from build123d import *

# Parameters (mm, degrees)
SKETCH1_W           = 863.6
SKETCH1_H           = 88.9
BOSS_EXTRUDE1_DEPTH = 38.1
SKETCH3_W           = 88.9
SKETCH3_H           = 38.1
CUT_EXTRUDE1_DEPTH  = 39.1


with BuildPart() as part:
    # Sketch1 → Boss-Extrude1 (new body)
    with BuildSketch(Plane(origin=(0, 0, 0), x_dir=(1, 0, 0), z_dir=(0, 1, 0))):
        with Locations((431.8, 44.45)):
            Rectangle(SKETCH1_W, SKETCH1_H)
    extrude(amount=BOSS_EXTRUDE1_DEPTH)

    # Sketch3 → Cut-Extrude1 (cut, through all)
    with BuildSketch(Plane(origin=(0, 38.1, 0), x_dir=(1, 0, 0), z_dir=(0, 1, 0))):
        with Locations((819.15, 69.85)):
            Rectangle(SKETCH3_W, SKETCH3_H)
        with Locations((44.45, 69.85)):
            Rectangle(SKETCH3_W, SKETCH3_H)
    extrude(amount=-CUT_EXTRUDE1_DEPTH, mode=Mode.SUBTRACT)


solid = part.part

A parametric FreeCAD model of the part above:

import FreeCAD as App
import Part
import Sketcher
from FreeCAD import Vector
Q = App.Units.Quantity

doc = App.newDocument("Part")
params = doc.addObject("Spreadsheet::Sheet", "Params")
for row, (alias, value) in enumerate([
    ("sketch1_width", "34 in"),
    ("sketch1_height", "3.5 in"),
    ("pad1_length", "1.5 in"),
    ("sketch2_width", "3.5 in"),
    ("sketch2_height", "1.5 in"),
], start=1):
    params.set(f"A{row}", alias)
    params.set(f"B{row}", "=" + value)
    params.setAlias(f"B{row}", alias)

body = doc.addObject("PartDesign::Body", "Body")

# Sketch on XZ plane
sketch1 = body.newObject("Sketcher::SketchObject", "Sketch")
sketch1.AttachmentSupport = (doc.getObject("XZ_Plane"), [""])
sketch1.MapMode = "FlatFace"
sketch1.addGeometry([
    Part.LineSegment(Vector(0, -89, 0), Vector(0, 0, 0)),
    Part.LineSegment(Vector(0, 0, 0), Vector(864, 0, 0)),
    Part.LineSegment(Vector(864, 0, 0), Vector(864, -89, 0)),
    Part.LineSegment(Vector(864, -89, 0), Vector(0, -89, 0)),
], False)
sketch1.addConstraint([
    Sketcher.Constraint("Coincident", 0, 2, 1, 1),
    Sketcher.Constraint("Coincident", 1, 2, 2, 1),
    Sketcher.Constraint("Coincident", 2, 2, 3, 1),
    Sketcher.Constraint("Coincident", 3, 2, 0, 1),
    Sketcher.Constraint("Vertical", 0),
    Sketcher.Constraint("Horizontal", 1),
    Sketcher.Constraint("Vertical", 2),
    Sketcher.Constraint("Horizontal", 3),
    Sketcher.Constraint("Coincident", 0, 2, -1, 1),
    Sketcher.Constraint("DistanceX", 1, 1, 1, 2, Q("34 in")),
    Sketcher.Constraint("DistanceY", 0, 1, 0, 2, Q("3.5 in")),
])
sketch1.setExpression("Constraints[9]", "Params.sketch1_width")
sketch1.setExpression("Constraints[10]", "Params.sketch1_height")
pad1 = body.newObject("PartDesign::Pad", "Pad")
pad1.Profile = sketch1
pad1.setExpression("Length", "Params.pad1_length")
pad1.Reversed = True

# Sketch on XZ plane
sketch2 = body.newObject("Sketcher::SketchObject", "Sketch001")
sketch2.AttachmentSupport = (doc.getObject("XZ_Plane"), [""])
sketch2.MapMode = "FlatFace"
sketch2.AttachmentOffset = App.Placement(Vector(0, 0, -1.5 * 25.4), App.Rotation())
sketch2.addGeometry([
    Part.LineSegment(Vector(775, -89, 0), Vector(775, -51, 0)),  # 0
    Part.LineSegment(Vector(775, -51, 0), Vector(864, -51, 0)),  # 1
    Part.LineSegment(Vector(864, -51, 0), Vector(864, -89, 0)),  # 2
    Part.LineSegment(Vector(864, -89, 0), Vector(775, -89, 0)),  # 3
    Part.LineSegment(Vector(0, -89, 0), Vector(0, -51, 0)),  # 4
    Part.LineSegment(Vector(0, -51, 0), Vector(89, -51, 0)),  # 5
    Part.LineSegment(Vector(89, -51, 0), Vector(89, -89, 0)),  # 6
    Part.LineSegment(Vector(89, -89, 0), Vector(0, -89, 0)),  # 7
], False)
sketch2.addConstraint([
    Sketcher.Constraint("Coincident", 0, 2, 1, 1),
    Sketcher.Constraint("Coincident", 1, 2, 2, 1),
    Sketcher.Constraint("Coincident", 2, 2, 3, 1),
    Sketcher.Constraint("Coincident", 3, 2, 0, 1),
    Sketcher.Constraint("Coincident", 4, 2, 5, 1),
    Sketcher.Constraint("Coincident", 5, 2, 6, 1),
    Sketcher.Constraint("Coincident", 6, 2, 7, 1),
    Sketcher.Constraint("Coincident", 7, 2, 4, 1),
    Sketcher.Constraint("Vertical", 0),
    Sketcher.Constraint("Horizontal", 1),
    Sketcher.Constraint("Vertical", 2),
    Sketcher.Constraint("Horizontal", 3),
    Sketcher.Constraint("Vertical", 4),
    Sketcher.Constraint("Horizontal", 5),
    Sketcher.Constraint("Vertical", 6),
    Sketcher.Constraint("Horizontal", 7),
    Sketcher.Constraint("PointOnObject", 4, 2, -2),
    Sketcher.Constraint("Horizontal", 1, 2, 4, 2),
    Sketcher.Constraint("Horizontal", 3, 2, 6, 2),
    Sketcher.Constraint("Equal", 3, 5),
    Sketcher.Constraint("DistanceX", 1, 1, 1, 2, Q("3.5 in")),
    Sketcher.Constraint("DistanceY", 0, 1, 0, 2, Q("1.5 in")),
    Sketcher.Constraint("DistanceY", 0, 2, -1, 1, Q("2 in")),
    Sketcher.Constraint("DistanceX", -1, 1, 1, 2, Q("34 in")),
])
sketch2.setExpression("Constraints[20]", "Params.sketch2_width")
sketch2.setExpression("Constraints[21]", "Params.sketch2_height")
pocket1 = body.newObject("PartDesign::Pocket", "Pocket")
pocket1.Profile = sketch2
pocket1.Type = "ThroughAll"
pocket1.Reversed = True

doc.recompute()
